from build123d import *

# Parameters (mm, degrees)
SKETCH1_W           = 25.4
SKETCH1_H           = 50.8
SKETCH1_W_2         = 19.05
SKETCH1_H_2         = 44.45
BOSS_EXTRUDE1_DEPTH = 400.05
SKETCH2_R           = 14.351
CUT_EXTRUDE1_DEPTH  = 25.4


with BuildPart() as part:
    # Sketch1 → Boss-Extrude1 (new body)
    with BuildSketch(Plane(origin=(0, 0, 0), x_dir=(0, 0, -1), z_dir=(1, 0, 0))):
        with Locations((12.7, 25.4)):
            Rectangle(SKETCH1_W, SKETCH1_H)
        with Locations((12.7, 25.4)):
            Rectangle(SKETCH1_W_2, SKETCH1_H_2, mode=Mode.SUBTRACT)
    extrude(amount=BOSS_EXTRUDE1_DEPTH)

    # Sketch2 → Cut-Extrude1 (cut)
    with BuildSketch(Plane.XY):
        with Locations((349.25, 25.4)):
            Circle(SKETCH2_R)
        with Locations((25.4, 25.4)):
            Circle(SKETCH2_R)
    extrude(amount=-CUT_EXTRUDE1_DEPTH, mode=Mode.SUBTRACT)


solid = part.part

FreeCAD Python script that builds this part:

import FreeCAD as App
import Part
import Sketcher

V = App.Vector
Q = App.Units.Quantity

doc = App.newDocument("Part")
body = doc.addObject("PartDesign::Body", "Body")

sketch1 = body.newObject("Sketcher::SketchObject", "Sketch")
sketch1.AttachmentSupport = (doc.getObject("YZ_Plane"), [""])
sketch1.MapMode = "FlatFace"
sketch1.addGeometry(Part.LineSegment(V(50.8, 0, 0), V(0, 0, 0)), False)
sketch1.addGeometry(Part.LineSegment(V(0, 0, 0), V(0, -25.4, 0)), False)
sketch1.addGeometry(Part.LineSegment(V(0, -25.4, 0), V(50.8, -25.4, 0)), False)
sketch1.addGeometry(Part.LineSegment(V(50.8, -25.4, 0), V(50.8, 0, 0)), False)
sketch1.addGeometry(Part.LineSegment(V(3.175, -22.225, 0), V(3.175, -3.175, 0)), False)
sketch1.addGeometry(Part.LineSegment(V(3.175, -3.175, 0), V(47.625, -3.175, 0)), False)
sketch1.addGeometry(Part.LineSegment(V(47.625, -3.175, 0), V(47.625, -22.225, 0)), False)
sketch1.addGeometry(Part.LineSegment(V(47.625, -22.225, 0), V(3.175, -22.225, 0)), False)
sketch1.addConstraint(Sketcher.Constraint("Coincident", 0, 2, 1, 1))
sketch1.addConstraint(Sketcher.Constraint("Coincident", 1, 2, 2, 1))
sketch1.addConstraint(Sketcher.Constraint("Coincident", 2, 2, 3, 1))
sketch1.addConstraint(Sketcher.Constraint("Coincident", 3, 2, 0, 1))
sketch1.addConstraint(Sketcher.Constraint("Coincident", 4, 2, 5, 1))
sketch1.addConstraint(Sketcher.Constraint("Coincident", 5, 2, 6, 1))
sketch1.addConstraint(Sketcher.Constraint("Coincident", 6, 2, 7, 1))
sketch1.addConstraint(Sketcher.Constraint("Coincident", 7, 2, 4, 1))
sketch1.addConstraint(Sketcher.Constraint("Horizontal", 0))
sketch1.addConstraint(Sketcher.Constraint("Vertical", 1))
sketch1.addConstraint(Sketcher.Constraint("Horizontal", 2))
sketch1.addConstraint(Sketcher.Constraint("Vertical", 3))
sketch1.addConstraint(Sketcher.Constraint("Vertical", 4))
sketch1.addConstraint(Sketcher.Constraint("Horizontal", 5))
sketch1.addConstraint(Sketcher.Constraint("Vertical", 6))
sketch1.addConstraint(Sketcher.Constraint("Horizontal", 7))
sketch1.addConstraint(Sketcher.Constraint("Coincident", 0, 2, -1, 1))
sketch1.addConstraint(Sketcher.Constraint("DistanceX", 0, 2, 0, 1, Q("2 in")))
sketch1.addConstraint(Sketcher.Constraint("DistanceY", 1, 2, 1, 1, Q("1 in")))
sketch1.addConstraint(Sketcher.Constraint("DistanceX", 5, 1, 5, 2, Q("1.75 in")))
sketch1.addConstraint(Sketcher.Constraint("DistanceY", 4, 1, 4, 2, Q("0.75 in")))
sketch1.addConstraint(Sketcher.Constraint("DistanceX", -1, 1, 4, 2, Q("0.125 in")))
sketch1.addConstraint(Sketcher.Constraint("DistanceY", 4, 2, -1, 1, Q("0.125 in")))
pad1 = body.newObject("PartDesign::Pad", "Pad")
pad1.Profile = sketch1
pad1.Length = Q("15.75 in")

sketch2 = body.newObject("Sketcher::SketchObject", "Sketch001")
sketch2.AttachmentSupport = (doc.getObject("XY_Plane"), [""])
sketch2.MapMode = "FlatFace"
sketch2.addGeometry(Part.Circle(V(349.25, 25.4, 0), V(0, 0, 1), 14.351), False)
sketch2.addGeometry(Part.Circle(V(25.4, 25.4, 0), V(0, 0, 1), 14.351), False)
sketch2.addConstraint(Sketcher.Constraint("Equal", 0, 1))
sketch2.addConstraint(Sketcher.Constraint("Horizontal", 0, 3, 1, 3))
sketch2.addConstraint(Sketcher.Constraint("Diameter", 0, Q("1.13 in")))
sketch2.addConstraint(Sketcher.Constraint("DistanceY", -1, 1, 0, 3, Q("1 in")))
sketch2.addConstraint(Sketcher.Constraint("DistanceX", -1, 1, 1, 3, Q("1 in")))
sketch2.addConstraint(Sketcher.Constraint("DistanceX", -1, 1, 0, 3, Q("13.75 in")))
pocket1 = body.newObject("PartDesign::Pocket", "Pocket")
pocket1.Profile = sketch2
pocket1.Length = Q("1 in")

doc.recompute()
